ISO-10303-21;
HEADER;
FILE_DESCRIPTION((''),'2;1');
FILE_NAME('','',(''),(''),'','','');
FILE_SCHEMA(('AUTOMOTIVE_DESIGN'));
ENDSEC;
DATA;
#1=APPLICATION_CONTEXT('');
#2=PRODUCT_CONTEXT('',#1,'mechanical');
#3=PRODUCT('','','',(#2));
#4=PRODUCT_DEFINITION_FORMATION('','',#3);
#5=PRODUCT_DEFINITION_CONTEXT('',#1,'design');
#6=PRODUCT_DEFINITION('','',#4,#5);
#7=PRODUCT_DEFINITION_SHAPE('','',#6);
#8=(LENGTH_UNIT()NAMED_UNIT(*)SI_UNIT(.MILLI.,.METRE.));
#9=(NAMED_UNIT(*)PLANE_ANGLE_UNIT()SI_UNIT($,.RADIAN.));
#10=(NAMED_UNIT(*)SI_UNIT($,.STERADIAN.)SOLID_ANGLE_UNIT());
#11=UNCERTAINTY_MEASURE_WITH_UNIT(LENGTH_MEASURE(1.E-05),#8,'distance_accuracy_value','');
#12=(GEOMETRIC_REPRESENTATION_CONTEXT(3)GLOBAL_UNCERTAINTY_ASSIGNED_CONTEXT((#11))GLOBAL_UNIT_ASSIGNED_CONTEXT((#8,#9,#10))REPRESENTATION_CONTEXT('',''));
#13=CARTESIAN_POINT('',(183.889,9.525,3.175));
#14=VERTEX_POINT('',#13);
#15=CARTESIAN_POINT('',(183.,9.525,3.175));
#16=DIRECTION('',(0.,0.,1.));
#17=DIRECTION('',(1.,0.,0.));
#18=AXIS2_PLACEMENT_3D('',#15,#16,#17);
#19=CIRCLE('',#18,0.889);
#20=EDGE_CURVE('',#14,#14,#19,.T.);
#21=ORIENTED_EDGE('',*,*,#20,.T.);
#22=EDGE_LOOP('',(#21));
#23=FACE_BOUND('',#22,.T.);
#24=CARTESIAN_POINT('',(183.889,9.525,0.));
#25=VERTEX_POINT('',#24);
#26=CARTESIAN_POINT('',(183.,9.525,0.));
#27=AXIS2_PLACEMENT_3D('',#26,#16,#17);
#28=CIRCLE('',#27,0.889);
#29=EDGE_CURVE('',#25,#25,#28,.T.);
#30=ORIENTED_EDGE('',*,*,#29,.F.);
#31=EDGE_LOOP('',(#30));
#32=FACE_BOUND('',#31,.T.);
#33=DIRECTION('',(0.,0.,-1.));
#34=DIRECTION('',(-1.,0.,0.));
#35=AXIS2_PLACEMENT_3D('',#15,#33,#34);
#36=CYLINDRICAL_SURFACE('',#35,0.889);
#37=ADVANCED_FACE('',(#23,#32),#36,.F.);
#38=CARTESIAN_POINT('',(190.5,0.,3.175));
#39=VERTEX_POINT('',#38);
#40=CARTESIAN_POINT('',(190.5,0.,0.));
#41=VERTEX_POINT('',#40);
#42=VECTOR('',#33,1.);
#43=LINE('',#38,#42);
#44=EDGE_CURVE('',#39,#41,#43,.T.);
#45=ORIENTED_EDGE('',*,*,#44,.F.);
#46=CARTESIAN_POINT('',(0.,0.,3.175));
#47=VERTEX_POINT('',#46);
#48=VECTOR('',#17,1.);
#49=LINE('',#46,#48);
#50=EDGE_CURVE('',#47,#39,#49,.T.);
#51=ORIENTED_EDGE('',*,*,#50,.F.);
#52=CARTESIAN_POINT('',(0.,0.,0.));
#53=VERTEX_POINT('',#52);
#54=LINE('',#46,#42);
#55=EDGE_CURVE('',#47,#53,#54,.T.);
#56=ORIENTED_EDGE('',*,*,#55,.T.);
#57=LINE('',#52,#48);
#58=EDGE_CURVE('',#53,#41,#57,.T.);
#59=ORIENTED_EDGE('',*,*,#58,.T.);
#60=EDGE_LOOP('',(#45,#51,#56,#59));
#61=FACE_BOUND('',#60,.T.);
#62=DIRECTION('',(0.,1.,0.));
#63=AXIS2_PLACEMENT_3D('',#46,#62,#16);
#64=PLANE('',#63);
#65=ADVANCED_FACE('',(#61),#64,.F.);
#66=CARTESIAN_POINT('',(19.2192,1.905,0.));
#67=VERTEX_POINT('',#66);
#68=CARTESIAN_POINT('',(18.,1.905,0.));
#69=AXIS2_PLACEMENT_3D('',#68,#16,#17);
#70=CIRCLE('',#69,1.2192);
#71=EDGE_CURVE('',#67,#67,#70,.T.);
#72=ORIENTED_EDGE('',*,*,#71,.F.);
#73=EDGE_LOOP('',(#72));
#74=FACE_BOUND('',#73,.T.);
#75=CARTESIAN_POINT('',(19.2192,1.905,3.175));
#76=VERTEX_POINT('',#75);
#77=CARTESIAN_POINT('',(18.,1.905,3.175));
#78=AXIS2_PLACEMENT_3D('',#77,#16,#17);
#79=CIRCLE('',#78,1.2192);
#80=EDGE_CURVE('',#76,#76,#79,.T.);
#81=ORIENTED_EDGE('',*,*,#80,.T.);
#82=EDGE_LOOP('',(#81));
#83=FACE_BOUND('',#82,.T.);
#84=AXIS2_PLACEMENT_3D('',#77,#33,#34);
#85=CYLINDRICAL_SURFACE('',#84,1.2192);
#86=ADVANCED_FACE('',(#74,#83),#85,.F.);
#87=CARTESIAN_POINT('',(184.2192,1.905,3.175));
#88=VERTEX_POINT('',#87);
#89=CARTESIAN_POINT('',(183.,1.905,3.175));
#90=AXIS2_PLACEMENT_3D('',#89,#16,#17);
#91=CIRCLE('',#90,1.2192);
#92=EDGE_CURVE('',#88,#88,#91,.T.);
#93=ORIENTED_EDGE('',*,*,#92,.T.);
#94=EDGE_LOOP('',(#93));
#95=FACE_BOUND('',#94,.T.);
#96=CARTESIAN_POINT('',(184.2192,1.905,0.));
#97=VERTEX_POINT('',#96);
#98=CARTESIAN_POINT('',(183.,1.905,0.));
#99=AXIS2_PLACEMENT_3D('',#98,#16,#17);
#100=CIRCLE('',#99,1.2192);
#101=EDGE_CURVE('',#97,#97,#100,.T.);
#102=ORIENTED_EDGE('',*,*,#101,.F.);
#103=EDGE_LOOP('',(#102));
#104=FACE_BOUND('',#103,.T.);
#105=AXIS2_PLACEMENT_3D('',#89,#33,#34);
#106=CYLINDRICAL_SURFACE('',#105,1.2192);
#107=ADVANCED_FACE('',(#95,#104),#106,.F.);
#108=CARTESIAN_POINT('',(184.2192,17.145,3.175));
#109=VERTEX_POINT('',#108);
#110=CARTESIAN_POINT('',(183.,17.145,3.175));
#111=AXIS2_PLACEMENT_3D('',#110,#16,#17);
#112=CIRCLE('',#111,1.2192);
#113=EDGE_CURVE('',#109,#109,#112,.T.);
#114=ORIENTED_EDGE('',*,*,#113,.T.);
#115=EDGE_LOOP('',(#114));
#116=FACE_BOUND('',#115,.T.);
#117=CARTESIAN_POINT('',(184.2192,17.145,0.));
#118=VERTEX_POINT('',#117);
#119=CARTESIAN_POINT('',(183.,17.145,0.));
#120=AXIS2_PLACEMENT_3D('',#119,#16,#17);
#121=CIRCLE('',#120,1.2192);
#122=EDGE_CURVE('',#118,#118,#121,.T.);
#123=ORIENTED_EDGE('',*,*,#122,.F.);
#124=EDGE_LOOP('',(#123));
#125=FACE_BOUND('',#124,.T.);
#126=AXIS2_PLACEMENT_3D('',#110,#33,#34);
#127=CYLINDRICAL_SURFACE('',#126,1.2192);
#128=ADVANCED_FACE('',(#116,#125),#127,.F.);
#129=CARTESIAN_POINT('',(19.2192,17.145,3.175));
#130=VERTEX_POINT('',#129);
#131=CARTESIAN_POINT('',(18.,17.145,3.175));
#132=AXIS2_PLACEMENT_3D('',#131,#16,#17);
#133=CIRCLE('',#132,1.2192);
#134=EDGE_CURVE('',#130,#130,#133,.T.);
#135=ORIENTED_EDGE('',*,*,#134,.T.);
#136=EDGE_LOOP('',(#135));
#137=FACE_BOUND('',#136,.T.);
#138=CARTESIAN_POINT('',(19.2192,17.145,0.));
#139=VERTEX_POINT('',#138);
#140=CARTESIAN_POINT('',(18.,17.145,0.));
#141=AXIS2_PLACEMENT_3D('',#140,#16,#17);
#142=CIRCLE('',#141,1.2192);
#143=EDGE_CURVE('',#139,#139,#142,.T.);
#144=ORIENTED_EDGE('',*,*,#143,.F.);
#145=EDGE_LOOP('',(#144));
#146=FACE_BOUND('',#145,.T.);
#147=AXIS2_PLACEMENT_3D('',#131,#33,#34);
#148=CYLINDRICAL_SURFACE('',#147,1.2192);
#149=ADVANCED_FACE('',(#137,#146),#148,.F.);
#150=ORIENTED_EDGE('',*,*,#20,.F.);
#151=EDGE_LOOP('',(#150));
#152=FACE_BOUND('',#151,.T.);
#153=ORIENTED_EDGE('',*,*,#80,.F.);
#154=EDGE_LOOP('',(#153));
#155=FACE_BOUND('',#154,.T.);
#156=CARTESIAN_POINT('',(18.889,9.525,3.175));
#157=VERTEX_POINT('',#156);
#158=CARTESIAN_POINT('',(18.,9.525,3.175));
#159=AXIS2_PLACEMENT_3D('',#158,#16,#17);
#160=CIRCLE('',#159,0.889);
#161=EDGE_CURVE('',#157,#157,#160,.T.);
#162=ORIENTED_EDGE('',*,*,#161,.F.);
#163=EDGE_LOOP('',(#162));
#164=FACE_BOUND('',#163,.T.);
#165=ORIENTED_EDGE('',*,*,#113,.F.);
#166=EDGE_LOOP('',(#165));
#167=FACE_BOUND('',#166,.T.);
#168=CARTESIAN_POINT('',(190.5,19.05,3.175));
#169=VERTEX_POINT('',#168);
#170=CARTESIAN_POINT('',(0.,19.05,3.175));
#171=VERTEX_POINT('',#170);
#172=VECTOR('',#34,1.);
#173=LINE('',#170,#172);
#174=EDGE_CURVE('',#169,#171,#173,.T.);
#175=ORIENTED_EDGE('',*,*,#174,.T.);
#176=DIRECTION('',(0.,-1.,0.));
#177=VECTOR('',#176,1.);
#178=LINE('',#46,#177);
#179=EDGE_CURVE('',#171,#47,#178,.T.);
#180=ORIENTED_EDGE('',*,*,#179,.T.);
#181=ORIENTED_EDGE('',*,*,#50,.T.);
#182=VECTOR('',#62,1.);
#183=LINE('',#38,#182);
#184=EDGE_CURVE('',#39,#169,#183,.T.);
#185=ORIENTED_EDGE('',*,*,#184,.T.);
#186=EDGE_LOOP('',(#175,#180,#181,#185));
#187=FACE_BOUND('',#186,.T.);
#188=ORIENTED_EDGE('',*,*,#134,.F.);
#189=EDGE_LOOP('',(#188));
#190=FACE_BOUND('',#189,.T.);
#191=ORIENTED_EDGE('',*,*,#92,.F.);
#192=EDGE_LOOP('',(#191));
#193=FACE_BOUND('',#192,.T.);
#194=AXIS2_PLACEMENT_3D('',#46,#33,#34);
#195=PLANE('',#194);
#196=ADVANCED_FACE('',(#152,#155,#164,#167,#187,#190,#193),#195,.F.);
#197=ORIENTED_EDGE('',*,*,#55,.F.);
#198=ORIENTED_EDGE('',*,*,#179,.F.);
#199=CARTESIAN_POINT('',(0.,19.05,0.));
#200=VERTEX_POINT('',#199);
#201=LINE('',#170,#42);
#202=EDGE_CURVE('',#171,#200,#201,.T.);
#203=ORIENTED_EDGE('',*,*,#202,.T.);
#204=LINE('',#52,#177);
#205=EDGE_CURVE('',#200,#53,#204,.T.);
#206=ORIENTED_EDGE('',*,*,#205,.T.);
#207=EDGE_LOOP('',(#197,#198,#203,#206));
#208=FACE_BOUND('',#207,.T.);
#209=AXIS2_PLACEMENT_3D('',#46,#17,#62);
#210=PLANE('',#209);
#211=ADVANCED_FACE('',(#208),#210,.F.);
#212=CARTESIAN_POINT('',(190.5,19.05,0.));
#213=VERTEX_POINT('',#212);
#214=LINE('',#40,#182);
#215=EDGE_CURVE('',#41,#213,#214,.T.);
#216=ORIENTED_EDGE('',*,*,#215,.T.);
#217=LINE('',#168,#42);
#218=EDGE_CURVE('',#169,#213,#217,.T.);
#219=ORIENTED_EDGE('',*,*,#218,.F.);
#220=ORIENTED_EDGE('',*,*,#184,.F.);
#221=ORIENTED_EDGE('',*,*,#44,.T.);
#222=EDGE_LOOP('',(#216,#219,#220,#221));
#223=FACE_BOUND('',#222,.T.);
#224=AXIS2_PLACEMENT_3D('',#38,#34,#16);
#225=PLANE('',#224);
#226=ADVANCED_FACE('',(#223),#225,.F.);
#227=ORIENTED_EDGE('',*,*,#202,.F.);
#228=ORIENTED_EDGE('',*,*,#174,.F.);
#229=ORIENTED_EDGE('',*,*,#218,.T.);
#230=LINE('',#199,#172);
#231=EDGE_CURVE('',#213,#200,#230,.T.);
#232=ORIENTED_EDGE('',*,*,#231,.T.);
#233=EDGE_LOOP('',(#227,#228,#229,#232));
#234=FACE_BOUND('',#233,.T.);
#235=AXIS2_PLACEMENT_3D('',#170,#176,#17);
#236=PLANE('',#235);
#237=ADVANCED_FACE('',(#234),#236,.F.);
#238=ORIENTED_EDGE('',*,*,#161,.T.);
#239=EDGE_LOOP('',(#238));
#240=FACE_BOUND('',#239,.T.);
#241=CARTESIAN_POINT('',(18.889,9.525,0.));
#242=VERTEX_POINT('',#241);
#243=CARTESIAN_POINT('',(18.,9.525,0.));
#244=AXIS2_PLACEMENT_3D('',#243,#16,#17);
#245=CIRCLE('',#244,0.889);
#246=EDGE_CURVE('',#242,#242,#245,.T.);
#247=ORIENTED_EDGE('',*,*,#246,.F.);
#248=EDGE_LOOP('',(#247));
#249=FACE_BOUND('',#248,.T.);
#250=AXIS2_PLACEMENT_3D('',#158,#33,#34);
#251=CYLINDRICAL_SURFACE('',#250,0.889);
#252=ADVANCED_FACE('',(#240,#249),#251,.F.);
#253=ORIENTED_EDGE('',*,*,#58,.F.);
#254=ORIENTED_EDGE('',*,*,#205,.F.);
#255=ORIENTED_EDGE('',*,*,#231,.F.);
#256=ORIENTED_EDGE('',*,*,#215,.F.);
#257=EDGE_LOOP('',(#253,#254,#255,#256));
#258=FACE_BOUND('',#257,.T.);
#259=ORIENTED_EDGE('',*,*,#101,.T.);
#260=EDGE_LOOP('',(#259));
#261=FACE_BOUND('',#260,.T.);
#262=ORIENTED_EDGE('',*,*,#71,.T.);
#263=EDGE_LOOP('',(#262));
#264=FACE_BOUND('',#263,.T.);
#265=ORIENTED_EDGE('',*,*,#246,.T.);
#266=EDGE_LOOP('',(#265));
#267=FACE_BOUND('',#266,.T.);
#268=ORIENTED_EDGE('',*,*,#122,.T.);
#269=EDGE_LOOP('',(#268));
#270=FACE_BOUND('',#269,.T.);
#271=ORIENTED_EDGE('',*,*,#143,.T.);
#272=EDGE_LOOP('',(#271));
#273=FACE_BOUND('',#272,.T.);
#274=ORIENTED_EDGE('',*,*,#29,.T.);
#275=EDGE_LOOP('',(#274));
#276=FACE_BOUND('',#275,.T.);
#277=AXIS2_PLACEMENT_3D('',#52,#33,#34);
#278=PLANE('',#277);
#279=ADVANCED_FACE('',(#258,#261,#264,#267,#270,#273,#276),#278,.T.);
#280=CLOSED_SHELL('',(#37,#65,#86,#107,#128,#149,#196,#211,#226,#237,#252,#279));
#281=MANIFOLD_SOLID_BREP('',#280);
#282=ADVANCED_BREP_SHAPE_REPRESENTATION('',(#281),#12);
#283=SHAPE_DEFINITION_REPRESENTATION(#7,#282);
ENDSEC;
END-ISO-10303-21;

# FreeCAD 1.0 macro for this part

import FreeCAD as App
import Part
import Sketcher
Q = App.Units.Quantity

doc = App.newDocument("Part")
body = doc.addObject("PartDesign::Body", "Body")

# Sketch on XY plane
sketch1 = body.newObject("Sketcher::SketchObject", "Sketch")
sketch1.AttachmentSupport = (doc.getObject("XY_Plane"), [""])
sketch1.MapMode = "FlatFace"
sketch1.addGeometry([
    Part.LineSegment(App.Vector(0, 19.1, 0), App.Vector(0, 0, 0)),  # 0
    Part.LineSegment(App.Vector(0, 0, 0), App.Vector(190.5, 0, 0)),  # 1
    Part.LineSegment(App.Vector(190.5, 0, 0), App.Vector(190.5, 19.1, 0)),  # 2
    Part.LineSegment(App.Vector(190.5, 19.1, 0), App.Vector(0, 19.1, 0)),  # 3
    Part.Circle(App.Vector(18, 1.9, 0), App.Vector(0, 0, 1), 1.2),  # 4
    Part.Circle(App.Vector(183, 1.9, 0), App.Vector(0, 0, 1), 1.2),  # 5
    Part.Circle(App.Vector(18, 9.5, 0), App.Vector(0, 0, 1), 0.9),  # 6
    Part.Circle(App.Vector(18, 17.1, 0), App.Vector(0, 0, 1), 1.2),  # 7
    Part.Circle(App.Vector(183, 9.5, 0), App.Vector(0, 0, 1), 0.9),  # 8
    Part.Circle(App.Vector(183, 17.1, 0), App.Vector(0, 0, 1), 1.2),  # 9
], False)
sketch1.addConstraint([
    Sketcher.Constraint("Coincident", 0, 2, 1, 1),
    Sketcher.Constraint("Coincident", 1, 2, 2, 1),
    Sketcher.Constraint("Coincident", 2, 2, 3, 1),
    Sketcher.Constraint("Coincident", 3, 2, 0, 1),
    Sketcher.Constraint("Vertical", 0),
    Sketcher.Constraint("Horizontal", 1),
    Sketcher.Constraint("Vertical", 2),
    Sketcher.Constraint("Horizontal", 3),
    Sketcher.Constraint("Coincident", 0, 2, -1, 1),
    Sketcher.Constraint("Equal", 4, 5),
    Sketcher.Constraint("Equal", 5, 7),
    Sketcher.Constraint("Equal", 6, 8),
    Sketcher.Constraint("Equal", 7, 9),
    Sketcher.Constraint("Horizontal", 4, 3, 5, 3),
    Sketcher.Constraint("Horizontal", 6, 3, 8, 3),
    Sketcher.Constraint("Horizontal", 7, 3, 9, 3),
    Sketcher.Constraint("Vertical", 4, 3, 6, 3),
    Sketcher.Constraint("Vertical", 6, 3, 7, 3),
    Sketcher.Constraint("Vertical", 5, 3, 8, 3),
    Sketcher.Constraint("Vertical", 8, 3, 9, 3),
    Sketcher.Constraint("Diameter", 6, Q("0.07 in")),
    Sketcher.Constraint("Diameter", 4, Q("0.096 in")),
    Sketcher.Constraint("DistanceX", 1, 1, 1, 2, Q("7.5 in")),
    Sketcher.Constraint("DistanceY", 0, 2, 0, 1, Q("0.75 in")),
    Sketcher.Constraint("DistanceY", 4, 3, 6, 3, Q("0.3 in")),
    Sketcher.Constraint("DistanceY", 6, 3, 7, 3, Q("0.3 in")),
    Sketcher.Constraint("DistanceY", -1, 1, 4, 3, Q("0.075 in")),
    Sketcher.Constraint("DistanceX", -1, 1, 4, 3, 18.0),
    Sketcher.Constraint("DistanceX", -1, 1, 5, 3, 183.0),
])
pad1 = body.newObject("PartDesign::Pad", "Pad")
pad1.Profile = sketch1
pad1.Length = Q("0.125 in")

doc.recompute()
